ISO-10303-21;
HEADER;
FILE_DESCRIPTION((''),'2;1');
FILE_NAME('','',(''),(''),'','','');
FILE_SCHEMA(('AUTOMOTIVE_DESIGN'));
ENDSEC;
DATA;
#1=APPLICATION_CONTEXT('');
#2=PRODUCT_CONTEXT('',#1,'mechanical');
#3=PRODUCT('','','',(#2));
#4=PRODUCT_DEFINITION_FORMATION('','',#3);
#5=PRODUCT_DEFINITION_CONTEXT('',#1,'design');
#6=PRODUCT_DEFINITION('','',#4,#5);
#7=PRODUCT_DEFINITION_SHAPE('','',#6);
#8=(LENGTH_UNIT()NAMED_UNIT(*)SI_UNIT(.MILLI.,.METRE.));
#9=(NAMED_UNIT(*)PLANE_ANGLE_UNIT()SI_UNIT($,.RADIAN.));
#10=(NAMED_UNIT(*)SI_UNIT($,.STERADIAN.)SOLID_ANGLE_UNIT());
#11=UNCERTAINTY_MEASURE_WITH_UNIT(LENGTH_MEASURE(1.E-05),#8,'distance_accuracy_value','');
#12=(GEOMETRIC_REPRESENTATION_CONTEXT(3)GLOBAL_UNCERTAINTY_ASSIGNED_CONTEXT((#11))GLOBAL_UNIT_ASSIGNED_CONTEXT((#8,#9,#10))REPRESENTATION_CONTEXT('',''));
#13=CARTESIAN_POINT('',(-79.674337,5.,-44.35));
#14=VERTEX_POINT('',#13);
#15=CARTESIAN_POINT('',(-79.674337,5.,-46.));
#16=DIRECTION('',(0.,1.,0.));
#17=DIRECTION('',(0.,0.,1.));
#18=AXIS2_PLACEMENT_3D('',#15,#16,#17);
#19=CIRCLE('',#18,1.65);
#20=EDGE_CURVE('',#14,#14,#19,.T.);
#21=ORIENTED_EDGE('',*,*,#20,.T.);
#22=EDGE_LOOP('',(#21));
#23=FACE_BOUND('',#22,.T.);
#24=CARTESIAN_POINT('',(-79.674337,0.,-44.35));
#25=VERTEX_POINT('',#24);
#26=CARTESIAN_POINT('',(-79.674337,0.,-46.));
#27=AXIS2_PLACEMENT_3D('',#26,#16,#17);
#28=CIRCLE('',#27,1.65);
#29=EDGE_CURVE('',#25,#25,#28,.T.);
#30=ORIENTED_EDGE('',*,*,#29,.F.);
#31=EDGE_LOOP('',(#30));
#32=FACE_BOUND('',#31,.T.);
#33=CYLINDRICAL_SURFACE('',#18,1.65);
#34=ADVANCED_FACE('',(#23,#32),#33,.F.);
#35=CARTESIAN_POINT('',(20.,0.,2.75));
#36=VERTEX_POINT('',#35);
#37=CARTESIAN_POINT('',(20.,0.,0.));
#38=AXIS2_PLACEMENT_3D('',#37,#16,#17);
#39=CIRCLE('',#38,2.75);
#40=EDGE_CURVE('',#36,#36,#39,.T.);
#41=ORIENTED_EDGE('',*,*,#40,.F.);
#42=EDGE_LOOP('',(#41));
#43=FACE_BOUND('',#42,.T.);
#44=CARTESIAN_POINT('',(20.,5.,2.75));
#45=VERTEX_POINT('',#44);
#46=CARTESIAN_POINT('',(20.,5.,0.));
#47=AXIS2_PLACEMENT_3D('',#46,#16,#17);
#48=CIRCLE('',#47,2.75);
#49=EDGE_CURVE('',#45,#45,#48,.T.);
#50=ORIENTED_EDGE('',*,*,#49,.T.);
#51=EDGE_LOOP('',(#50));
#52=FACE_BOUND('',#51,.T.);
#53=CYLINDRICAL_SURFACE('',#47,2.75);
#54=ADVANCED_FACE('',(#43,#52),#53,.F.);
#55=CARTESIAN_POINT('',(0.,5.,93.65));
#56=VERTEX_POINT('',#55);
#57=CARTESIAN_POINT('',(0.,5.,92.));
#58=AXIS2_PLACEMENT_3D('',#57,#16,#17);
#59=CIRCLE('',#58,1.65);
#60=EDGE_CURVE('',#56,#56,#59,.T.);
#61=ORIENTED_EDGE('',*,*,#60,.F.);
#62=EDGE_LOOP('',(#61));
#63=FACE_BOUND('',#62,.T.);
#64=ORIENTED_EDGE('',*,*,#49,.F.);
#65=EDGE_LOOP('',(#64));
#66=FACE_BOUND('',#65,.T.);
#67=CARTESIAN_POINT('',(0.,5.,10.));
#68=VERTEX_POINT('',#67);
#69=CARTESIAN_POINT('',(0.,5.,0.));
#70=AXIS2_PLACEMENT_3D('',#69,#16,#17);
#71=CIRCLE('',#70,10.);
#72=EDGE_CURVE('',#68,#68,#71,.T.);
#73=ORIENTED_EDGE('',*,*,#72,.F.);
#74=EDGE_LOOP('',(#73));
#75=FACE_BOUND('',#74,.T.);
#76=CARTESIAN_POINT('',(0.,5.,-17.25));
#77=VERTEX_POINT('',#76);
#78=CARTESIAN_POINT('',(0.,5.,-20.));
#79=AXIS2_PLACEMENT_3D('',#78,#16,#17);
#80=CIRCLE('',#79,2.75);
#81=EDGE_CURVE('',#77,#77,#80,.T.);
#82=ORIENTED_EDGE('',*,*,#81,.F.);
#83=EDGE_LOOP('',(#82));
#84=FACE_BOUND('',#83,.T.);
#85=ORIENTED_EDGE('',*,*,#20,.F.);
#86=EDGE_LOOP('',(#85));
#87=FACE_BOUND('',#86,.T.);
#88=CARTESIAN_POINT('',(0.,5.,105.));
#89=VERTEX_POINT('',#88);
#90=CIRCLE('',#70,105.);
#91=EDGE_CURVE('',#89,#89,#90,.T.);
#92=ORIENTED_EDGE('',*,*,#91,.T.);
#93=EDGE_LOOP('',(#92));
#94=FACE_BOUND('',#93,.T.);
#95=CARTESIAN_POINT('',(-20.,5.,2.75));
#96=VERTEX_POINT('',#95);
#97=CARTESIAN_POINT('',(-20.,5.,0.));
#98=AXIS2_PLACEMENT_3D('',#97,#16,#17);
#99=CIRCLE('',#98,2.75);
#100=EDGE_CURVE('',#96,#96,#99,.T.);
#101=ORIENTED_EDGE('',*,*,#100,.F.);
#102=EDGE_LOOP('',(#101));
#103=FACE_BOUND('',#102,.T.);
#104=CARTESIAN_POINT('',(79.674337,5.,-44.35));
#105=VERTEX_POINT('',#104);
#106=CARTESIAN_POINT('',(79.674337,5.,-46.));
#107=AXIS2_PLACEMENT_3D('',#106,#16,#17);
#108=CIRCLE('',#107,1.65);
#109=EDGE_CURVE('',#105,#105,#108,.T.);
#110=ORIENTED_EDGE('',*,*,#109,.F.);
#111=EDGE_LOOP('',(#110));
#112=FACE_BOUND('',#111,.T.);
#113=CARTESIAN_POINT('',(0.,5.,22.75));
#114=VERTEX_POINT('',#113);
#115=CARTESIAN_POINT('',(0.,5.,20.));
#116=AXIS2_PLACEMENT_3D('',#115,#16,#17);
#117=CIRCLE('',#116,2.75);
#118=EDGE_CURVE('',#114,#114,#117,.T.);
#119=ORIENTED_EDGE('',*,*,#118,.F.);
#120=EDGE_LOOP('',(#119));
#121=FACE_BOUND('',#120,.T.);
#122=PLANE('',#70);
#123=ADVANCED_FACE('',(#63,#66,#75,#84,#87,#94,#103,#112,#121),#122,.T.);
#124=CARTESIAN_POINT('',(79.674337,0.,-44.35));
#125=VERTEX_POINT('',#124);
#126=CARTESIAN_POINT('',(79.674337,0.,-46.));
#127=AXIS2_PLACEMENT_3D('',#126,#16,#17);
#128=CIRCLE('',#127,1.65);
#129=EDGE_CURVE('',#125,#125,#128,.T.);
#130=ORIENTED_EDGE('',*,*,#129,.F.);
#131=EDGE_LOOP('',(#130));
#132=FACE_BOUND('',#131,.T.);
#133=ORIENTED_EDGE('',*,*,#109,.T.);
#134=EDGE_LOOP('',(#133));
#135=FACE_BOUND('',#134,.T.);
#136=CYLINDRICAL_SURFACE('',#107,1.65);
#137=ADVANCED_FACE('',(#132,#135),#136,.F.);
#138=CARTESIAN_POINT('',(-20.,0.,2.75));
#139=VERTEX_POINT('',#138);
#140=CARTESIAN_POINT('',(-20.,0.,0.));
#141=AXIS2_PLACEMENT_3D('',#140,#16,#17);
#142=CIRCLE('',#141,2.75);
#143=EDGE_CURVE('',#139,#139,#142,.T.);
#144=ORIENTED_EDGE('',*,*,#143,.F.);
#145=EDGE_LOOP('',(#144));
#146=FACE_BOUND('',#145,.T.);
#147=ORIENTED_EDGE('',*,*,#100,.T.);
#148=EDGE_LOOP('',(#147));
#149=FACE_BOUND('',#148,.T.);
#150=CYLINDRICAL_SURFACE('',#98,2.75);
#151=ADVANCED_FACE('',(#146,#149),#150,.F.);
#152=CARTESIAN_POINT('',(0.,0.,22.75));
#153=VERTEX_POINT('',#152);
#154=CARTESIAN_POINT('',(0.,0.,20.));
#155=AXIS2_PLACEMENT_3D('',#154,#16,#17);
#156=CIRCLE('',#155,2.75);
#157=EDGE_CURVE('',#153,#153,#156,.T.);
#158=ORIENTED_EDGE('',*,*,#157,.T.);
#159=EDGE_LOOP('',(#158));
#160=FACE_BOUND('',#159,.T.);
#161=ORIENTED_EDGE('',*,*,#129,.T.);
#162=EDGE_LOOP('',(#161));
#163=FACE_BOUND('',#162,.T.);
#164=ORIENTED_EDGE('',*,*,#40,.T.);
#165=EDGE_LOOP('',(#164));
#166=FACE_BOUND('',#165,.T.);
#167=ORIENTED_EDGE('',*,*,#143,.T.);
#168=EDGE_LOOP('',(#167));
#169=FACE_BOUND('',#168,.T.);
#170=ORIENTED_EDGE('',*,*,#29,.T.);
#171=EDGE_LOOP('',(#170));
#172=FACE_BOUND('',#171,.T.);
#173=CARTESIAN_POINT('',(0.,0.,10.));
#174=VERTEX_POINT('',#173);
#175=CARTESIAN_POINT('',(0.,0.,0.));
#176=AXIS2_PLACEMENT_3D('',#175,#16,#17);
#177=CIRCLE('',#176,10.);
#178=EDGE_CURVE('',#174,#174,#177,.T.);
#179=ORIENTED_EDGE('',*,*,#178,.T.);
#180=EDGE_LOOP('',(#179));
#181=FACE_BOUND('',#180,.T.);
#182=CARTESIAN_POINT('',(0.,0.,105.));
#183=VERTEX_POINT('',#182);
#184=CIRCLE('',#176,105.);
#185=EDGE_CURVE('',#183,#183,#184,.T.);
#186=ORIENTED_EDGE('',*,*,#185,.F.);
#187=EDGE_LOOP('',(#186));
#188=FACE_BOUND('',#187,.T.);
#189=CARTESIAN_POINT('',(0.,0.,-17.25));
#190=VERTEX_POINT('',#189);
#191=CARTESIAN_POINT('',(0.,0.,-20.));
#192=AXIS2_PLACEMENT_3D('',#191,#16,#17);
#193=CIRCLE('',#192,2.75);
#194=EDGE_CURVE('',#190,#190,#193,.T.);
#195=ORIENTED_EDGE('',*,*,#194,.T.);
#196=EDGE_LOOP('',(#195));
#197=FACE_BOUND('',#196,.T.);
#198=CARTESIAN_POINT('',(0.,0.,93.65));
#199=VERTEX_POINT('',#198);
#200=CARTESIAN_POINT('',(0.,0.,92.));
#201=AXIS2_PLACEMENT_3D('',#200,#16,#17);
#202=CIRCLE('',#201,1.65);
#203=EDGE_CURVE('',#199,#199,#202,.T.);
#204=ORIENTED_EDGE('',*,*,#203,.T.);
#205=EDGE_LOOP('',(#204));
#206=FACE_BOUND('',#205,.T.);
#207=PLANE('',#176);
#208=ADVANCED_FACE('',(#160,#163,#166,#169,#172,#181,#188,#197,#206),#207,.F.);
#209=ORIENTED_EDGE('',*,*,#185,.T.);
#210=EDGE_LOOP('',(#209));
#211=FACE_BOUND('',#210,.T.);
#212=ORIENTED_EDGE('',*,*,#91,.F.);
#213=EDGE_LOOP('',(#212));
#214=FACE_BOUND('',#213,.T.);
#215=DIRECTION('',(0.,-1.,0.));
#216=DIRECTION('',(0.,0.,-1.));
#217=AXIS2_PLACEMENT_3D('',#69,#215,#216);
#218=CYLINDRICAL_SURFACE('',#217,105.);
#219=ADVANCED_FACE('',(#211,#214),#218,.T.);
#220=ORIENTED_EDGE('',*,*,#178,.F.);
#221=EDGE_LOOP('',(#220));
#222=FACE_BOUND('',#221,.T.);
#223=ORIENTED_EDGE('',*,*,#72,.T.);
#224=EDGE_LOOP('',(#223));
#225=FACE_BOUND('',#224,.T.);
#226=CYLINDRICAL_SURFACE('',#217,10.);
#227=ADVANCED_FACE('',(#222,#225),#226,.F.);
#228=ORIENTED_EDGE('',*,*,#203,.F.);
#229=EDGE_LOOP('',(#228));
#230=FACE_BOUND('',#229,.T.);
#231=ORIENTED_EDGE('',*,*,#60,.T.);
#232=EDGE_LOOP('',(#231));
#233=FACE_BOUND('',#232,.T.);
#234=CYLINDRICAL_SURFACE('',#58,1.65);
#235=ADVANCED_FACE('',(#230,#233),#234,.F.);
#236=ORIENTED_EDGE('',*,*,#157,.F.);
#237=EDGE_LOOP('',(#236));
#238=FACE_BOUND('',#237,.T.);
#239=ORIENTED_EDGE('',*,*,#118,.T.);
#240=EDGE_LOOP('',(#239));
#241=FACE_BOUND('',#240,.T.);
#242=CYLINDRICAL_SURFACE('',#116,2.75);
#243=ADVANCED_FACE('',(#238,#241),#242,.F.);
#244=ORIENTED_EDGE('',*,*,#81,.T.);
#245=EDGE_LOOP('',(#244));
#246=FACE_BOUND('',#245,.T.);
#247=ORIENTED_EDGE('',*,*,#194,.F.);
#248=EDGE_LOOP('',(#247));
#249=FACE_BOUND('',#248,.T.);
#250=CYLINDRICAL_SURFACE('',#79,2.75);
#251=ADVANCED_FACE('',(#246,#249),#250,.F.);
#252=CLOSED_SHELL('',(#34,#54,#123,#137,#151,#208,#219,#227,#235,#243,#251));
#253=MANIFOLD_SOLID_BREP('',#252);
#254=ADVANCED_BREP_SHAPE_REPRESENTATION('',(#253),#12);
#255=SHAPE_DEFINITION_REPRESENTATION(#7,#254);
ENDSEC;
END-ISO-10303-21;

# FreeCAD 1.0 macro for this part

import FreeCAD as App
import Part
import Sketcher
from FreeCAD import Vector
Q = App.Units.Quantity

doc = App.newDocument("Part")
body = doc.addObject("PartDesign::Body", "Body")

# Sketch on XZ plane
sketch1 = doc.addObject("Sketcher::SketchObject", "Sketch")
body.addObject(sketch1)
sketch1.AttachmentSupport = (doc.XZ_Plane, [""])
sketch1.MapMode = "FlatFace"
sketch1.addGeometry([
    Part.Circle(Vector(0, 0, 0), Vector(0, 0, 1), 105),
    Part.Circle(Vector(0, 0, 0), Vector(0, 0, 1), 10),
], False)
sketch1.addConstraint([
    Sketcher.Constraint("Coincident", 0, 3, -1, 1),
    Sketcher.Constraint("Coincident", 1, 3, -1, 1),
    Sketcher.Constraint("Diameter", 0, Q("210 mm")),
    Sketcher.Constraint("Diameter", 1, Q("20 mm")),
])
pad1 = doc.addObject("PartDesign::Pad", "Pad")
body.addObject(pad1)
pad1.Profile = sketch1
pad1.Length = 5
pad1.Reversed = True

# Sketch on XZ plane
sketch2 = doc.addObject("Sketcher::SketchObject", "Sketch001")
body.addObject(sketch2)
sketch2.AttachmentSupport = (doc.XZ_Plane, [""])
sketch2.MapMode = "FlatFace"
sketch2.AttachmentOffset = App.Placement(Vector(0, 0, -5), App.Rotation())
sketch2.addGeometry(Part.Circle(Vector(0, 92, 0), Vector(0, 0, 1), 1.6), False)
sketch2.addConstraint([
    Sketcher.Constraint("PointOnObject", 0, 3, -2),
    Sketcher.Constraint("Diameter", 0, Q("3.3 mm")),
    Sketcher.Constraint("DistanceY", -1, 1, 0, 3, Q("92 mm")),
])
doc.recompute()
hole = doc.addObject("PartDesign::Hole", "Hole")
body.addObject(hole)
hole.Profile = sketch2
hole.ThreadType = "None"
hole.Diameter = 3.3
hole.DepthType = "ThroughAll"
hole.Reversed = True
doc.recompute()

polarpattern = doc.addObject("PartDesign::PolarPattern", "PolarPattern")
body.addObject(polarpattern)
polarpattern.Originals = [hole]
polarpattern.Axis = (doc.Y_Axis, [""])
polarpattern.Angle = 360
polarpattern.Occurrences = 3
body.Tip = polarpattern

# Sketch on XZ plane
sketch3 = doc.addObject("Sketcher::SketchObject", "Sketch002")
body.addObject(sketch3)
sketch3.AttachmentSupport = (doc.XZ_Plane, [""])
sketch3.MapMode = "FlatFace"
sketch3.AttachmentOffset = App.Placement(Vector(0, 0, -5), App.Rotation())
sketch3.addGeometry(Part.Circle(Vector(0, 20, 0), Vector(0, 0, 1), 2.8), False)
sketch3.addConstraint([
    Sketcher.Constraint("PointOnObject", 0, 3, -2),
    Sketcher.Constraint("Diameter", 0, Q("5.5 mm")),
    Sketcher.Constraint("DistanceY", -1, 1, 0, 3, Q("20 mm")),
])
doc.recompute()
hole2 = doc.addObject("PartDesign::Hole", "Hole001")
body.addObject(hole2)
hole2.Profile = sketch3
hole2.ThreadType = "None"
hole2.Diameter = 5.5
hole2.DepthType = "ThroughAll"
hole2.Reversed = True
doc.recompute()

polarpattern2 = doc.addObject("PartDesign::PolarPattern", "PolarPattern001")
body.addObject(polarpattern2)
polarpattern2.Originals = [hole2]
polarpattern2.Axis = (doc.Y_Axis, [""])
polarpattern2.Angle = 360
polarpattern2.Occurrences = 4
body.Tip = polarpattern2

doc.recompute()
